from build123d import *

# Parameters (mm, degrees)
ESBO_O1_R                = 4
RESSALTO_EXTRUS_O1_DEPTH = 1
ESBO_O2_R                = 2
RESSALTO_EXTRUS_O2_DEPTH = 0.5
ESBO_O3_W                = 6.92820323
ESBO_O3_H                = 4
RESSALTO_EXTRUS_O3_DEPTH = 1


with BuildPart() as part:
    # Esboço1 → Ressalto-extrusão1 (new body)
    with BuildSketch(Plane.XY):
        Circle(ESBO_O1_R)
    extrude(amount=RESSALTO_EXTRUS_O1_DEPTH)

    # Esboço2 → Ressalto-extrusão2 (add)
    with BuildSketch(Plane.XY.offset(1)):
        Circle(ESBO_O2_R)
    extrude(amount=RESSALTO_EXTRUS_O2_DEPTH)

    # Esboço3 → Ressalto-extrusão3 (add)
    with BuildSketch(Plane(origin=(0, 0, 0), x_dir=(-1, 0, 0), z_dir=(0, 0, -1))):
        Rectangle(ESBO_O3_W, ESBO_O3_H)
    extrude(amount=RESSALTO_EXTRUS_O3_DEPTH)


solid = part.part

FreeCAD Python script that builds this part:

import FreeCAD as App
import Part
import Sketcher
Q = App.Units.Quantity


def add_polygon(sketch, points):
    """Adds a closed chain of lines whose ends are joined by coincident constraints."""
    first, n = sketch.GeometryCount, len(points)
    for a, b in zip(points, points[1:] + points[:1]):
        sketch.addGeometry(Part.LineSegment(App.Vector(*a, 0), App.Vector(*b, 0)), False)
    for i in range(n):
        sketch.addConstraint(Sketcher.Constraint("Coincident", first + i, 2, first + (i + 1) % n, 1))

doc = App.newDocument("Part")
body = doc.addObject("PartDesign::Body", "Body")

# Sketch on XY plane
sketch1 = doc.addObject("Sketcher::SketchObject", "Sketch")
body.addObject(sketch1)
sketch1.AttachmentSupport = (doc.XY_Plane, [""])
sketch1.MapMode = "FlatFace"
sketch1.addGeometry(Part.Circle(App.Vector(0, 0, 0), App.Vector(0, 0, 1), 4), False)
sketch1.addConstraint([
    Sketcher.Constraint("Coincident", 0, 3, -1, 1),
    Sketcher.Constraint("Diameter", 0, Q("8 mm")),
])
pad1 = doc.addObject("PartDesign::Pad", "Pad")
body.addObject(pad1)
pad1.Profile = sketch1
pad1.Length = 1

# Sketch on XY plane
sketch2 = doc.addObject("Sketcher::SketchObject", "Sketch001")
body.addObject(sketch2)
sketch2.AttachmentSupport = (doc.XY_Plane, [""])
sketch2.MapMode = "FlatFace"
sketch2.AttachmentOffset = App.Placement(App.Vector(0, 0, 1), App.Rotation())
sketch2.addGeometry(Part.Circle(App.Vector(0, 0, 0), App.Vector(0, 0, 1), 2), False)
sketch2.addConstraint([
    Sketcher.Constraint("Coincident", 0, 3, -1, 1),
    Sketcher.Constraint("Diameter", 0, Q("4 mm")),
])
pad2 = doc.addObject("PartDesign::Pad", "Pad001")
body.addObject(pad2)
pad2.Profile = sketch2
pad2.Length = 0.5

# Sketch on XY plane
sketch3 = doc.addObject("Sketcher::SketchObject", "Sketch002")
body.addObject(sketch3)
sketch3.AttachmentSupport = (doc.XY_Plane, [""])
sketch3.MapMode = "FlatFace"
add_polygon(sketch3, [(3.464102, 2), (3.464102, -2), (-3.464102, -2), (-3.464102, 2)])  # lines 0-3
sketch3.addConstraint([
    Sketcher.Constraint("Vertical", 0),
    Sketcher.Constraint("Horizontal", 1),
    Sketcher.Constraint("Vertical", 2),
    Sketcher.Constraint("Horizontal", 3),
    Sketcher.Constraint("Symmetric", 0, 2, 2, 2, -1, 1),
    Sketcher.Constraint("DistanceY", 0, 2, 0, 1, Q("4 mm")),
    Sketcher.Constraint("DistanceX", -1, 1, 0, 2, Q("3.464102 mm")),
])
pad3 = doc.addObject("PartDesign::Pad", "Pad002")
body.addObject(pad3)
pad3.Profile = sketch3
pad3.Length = 1
pad3.Reversed = True

doc.recompute()
